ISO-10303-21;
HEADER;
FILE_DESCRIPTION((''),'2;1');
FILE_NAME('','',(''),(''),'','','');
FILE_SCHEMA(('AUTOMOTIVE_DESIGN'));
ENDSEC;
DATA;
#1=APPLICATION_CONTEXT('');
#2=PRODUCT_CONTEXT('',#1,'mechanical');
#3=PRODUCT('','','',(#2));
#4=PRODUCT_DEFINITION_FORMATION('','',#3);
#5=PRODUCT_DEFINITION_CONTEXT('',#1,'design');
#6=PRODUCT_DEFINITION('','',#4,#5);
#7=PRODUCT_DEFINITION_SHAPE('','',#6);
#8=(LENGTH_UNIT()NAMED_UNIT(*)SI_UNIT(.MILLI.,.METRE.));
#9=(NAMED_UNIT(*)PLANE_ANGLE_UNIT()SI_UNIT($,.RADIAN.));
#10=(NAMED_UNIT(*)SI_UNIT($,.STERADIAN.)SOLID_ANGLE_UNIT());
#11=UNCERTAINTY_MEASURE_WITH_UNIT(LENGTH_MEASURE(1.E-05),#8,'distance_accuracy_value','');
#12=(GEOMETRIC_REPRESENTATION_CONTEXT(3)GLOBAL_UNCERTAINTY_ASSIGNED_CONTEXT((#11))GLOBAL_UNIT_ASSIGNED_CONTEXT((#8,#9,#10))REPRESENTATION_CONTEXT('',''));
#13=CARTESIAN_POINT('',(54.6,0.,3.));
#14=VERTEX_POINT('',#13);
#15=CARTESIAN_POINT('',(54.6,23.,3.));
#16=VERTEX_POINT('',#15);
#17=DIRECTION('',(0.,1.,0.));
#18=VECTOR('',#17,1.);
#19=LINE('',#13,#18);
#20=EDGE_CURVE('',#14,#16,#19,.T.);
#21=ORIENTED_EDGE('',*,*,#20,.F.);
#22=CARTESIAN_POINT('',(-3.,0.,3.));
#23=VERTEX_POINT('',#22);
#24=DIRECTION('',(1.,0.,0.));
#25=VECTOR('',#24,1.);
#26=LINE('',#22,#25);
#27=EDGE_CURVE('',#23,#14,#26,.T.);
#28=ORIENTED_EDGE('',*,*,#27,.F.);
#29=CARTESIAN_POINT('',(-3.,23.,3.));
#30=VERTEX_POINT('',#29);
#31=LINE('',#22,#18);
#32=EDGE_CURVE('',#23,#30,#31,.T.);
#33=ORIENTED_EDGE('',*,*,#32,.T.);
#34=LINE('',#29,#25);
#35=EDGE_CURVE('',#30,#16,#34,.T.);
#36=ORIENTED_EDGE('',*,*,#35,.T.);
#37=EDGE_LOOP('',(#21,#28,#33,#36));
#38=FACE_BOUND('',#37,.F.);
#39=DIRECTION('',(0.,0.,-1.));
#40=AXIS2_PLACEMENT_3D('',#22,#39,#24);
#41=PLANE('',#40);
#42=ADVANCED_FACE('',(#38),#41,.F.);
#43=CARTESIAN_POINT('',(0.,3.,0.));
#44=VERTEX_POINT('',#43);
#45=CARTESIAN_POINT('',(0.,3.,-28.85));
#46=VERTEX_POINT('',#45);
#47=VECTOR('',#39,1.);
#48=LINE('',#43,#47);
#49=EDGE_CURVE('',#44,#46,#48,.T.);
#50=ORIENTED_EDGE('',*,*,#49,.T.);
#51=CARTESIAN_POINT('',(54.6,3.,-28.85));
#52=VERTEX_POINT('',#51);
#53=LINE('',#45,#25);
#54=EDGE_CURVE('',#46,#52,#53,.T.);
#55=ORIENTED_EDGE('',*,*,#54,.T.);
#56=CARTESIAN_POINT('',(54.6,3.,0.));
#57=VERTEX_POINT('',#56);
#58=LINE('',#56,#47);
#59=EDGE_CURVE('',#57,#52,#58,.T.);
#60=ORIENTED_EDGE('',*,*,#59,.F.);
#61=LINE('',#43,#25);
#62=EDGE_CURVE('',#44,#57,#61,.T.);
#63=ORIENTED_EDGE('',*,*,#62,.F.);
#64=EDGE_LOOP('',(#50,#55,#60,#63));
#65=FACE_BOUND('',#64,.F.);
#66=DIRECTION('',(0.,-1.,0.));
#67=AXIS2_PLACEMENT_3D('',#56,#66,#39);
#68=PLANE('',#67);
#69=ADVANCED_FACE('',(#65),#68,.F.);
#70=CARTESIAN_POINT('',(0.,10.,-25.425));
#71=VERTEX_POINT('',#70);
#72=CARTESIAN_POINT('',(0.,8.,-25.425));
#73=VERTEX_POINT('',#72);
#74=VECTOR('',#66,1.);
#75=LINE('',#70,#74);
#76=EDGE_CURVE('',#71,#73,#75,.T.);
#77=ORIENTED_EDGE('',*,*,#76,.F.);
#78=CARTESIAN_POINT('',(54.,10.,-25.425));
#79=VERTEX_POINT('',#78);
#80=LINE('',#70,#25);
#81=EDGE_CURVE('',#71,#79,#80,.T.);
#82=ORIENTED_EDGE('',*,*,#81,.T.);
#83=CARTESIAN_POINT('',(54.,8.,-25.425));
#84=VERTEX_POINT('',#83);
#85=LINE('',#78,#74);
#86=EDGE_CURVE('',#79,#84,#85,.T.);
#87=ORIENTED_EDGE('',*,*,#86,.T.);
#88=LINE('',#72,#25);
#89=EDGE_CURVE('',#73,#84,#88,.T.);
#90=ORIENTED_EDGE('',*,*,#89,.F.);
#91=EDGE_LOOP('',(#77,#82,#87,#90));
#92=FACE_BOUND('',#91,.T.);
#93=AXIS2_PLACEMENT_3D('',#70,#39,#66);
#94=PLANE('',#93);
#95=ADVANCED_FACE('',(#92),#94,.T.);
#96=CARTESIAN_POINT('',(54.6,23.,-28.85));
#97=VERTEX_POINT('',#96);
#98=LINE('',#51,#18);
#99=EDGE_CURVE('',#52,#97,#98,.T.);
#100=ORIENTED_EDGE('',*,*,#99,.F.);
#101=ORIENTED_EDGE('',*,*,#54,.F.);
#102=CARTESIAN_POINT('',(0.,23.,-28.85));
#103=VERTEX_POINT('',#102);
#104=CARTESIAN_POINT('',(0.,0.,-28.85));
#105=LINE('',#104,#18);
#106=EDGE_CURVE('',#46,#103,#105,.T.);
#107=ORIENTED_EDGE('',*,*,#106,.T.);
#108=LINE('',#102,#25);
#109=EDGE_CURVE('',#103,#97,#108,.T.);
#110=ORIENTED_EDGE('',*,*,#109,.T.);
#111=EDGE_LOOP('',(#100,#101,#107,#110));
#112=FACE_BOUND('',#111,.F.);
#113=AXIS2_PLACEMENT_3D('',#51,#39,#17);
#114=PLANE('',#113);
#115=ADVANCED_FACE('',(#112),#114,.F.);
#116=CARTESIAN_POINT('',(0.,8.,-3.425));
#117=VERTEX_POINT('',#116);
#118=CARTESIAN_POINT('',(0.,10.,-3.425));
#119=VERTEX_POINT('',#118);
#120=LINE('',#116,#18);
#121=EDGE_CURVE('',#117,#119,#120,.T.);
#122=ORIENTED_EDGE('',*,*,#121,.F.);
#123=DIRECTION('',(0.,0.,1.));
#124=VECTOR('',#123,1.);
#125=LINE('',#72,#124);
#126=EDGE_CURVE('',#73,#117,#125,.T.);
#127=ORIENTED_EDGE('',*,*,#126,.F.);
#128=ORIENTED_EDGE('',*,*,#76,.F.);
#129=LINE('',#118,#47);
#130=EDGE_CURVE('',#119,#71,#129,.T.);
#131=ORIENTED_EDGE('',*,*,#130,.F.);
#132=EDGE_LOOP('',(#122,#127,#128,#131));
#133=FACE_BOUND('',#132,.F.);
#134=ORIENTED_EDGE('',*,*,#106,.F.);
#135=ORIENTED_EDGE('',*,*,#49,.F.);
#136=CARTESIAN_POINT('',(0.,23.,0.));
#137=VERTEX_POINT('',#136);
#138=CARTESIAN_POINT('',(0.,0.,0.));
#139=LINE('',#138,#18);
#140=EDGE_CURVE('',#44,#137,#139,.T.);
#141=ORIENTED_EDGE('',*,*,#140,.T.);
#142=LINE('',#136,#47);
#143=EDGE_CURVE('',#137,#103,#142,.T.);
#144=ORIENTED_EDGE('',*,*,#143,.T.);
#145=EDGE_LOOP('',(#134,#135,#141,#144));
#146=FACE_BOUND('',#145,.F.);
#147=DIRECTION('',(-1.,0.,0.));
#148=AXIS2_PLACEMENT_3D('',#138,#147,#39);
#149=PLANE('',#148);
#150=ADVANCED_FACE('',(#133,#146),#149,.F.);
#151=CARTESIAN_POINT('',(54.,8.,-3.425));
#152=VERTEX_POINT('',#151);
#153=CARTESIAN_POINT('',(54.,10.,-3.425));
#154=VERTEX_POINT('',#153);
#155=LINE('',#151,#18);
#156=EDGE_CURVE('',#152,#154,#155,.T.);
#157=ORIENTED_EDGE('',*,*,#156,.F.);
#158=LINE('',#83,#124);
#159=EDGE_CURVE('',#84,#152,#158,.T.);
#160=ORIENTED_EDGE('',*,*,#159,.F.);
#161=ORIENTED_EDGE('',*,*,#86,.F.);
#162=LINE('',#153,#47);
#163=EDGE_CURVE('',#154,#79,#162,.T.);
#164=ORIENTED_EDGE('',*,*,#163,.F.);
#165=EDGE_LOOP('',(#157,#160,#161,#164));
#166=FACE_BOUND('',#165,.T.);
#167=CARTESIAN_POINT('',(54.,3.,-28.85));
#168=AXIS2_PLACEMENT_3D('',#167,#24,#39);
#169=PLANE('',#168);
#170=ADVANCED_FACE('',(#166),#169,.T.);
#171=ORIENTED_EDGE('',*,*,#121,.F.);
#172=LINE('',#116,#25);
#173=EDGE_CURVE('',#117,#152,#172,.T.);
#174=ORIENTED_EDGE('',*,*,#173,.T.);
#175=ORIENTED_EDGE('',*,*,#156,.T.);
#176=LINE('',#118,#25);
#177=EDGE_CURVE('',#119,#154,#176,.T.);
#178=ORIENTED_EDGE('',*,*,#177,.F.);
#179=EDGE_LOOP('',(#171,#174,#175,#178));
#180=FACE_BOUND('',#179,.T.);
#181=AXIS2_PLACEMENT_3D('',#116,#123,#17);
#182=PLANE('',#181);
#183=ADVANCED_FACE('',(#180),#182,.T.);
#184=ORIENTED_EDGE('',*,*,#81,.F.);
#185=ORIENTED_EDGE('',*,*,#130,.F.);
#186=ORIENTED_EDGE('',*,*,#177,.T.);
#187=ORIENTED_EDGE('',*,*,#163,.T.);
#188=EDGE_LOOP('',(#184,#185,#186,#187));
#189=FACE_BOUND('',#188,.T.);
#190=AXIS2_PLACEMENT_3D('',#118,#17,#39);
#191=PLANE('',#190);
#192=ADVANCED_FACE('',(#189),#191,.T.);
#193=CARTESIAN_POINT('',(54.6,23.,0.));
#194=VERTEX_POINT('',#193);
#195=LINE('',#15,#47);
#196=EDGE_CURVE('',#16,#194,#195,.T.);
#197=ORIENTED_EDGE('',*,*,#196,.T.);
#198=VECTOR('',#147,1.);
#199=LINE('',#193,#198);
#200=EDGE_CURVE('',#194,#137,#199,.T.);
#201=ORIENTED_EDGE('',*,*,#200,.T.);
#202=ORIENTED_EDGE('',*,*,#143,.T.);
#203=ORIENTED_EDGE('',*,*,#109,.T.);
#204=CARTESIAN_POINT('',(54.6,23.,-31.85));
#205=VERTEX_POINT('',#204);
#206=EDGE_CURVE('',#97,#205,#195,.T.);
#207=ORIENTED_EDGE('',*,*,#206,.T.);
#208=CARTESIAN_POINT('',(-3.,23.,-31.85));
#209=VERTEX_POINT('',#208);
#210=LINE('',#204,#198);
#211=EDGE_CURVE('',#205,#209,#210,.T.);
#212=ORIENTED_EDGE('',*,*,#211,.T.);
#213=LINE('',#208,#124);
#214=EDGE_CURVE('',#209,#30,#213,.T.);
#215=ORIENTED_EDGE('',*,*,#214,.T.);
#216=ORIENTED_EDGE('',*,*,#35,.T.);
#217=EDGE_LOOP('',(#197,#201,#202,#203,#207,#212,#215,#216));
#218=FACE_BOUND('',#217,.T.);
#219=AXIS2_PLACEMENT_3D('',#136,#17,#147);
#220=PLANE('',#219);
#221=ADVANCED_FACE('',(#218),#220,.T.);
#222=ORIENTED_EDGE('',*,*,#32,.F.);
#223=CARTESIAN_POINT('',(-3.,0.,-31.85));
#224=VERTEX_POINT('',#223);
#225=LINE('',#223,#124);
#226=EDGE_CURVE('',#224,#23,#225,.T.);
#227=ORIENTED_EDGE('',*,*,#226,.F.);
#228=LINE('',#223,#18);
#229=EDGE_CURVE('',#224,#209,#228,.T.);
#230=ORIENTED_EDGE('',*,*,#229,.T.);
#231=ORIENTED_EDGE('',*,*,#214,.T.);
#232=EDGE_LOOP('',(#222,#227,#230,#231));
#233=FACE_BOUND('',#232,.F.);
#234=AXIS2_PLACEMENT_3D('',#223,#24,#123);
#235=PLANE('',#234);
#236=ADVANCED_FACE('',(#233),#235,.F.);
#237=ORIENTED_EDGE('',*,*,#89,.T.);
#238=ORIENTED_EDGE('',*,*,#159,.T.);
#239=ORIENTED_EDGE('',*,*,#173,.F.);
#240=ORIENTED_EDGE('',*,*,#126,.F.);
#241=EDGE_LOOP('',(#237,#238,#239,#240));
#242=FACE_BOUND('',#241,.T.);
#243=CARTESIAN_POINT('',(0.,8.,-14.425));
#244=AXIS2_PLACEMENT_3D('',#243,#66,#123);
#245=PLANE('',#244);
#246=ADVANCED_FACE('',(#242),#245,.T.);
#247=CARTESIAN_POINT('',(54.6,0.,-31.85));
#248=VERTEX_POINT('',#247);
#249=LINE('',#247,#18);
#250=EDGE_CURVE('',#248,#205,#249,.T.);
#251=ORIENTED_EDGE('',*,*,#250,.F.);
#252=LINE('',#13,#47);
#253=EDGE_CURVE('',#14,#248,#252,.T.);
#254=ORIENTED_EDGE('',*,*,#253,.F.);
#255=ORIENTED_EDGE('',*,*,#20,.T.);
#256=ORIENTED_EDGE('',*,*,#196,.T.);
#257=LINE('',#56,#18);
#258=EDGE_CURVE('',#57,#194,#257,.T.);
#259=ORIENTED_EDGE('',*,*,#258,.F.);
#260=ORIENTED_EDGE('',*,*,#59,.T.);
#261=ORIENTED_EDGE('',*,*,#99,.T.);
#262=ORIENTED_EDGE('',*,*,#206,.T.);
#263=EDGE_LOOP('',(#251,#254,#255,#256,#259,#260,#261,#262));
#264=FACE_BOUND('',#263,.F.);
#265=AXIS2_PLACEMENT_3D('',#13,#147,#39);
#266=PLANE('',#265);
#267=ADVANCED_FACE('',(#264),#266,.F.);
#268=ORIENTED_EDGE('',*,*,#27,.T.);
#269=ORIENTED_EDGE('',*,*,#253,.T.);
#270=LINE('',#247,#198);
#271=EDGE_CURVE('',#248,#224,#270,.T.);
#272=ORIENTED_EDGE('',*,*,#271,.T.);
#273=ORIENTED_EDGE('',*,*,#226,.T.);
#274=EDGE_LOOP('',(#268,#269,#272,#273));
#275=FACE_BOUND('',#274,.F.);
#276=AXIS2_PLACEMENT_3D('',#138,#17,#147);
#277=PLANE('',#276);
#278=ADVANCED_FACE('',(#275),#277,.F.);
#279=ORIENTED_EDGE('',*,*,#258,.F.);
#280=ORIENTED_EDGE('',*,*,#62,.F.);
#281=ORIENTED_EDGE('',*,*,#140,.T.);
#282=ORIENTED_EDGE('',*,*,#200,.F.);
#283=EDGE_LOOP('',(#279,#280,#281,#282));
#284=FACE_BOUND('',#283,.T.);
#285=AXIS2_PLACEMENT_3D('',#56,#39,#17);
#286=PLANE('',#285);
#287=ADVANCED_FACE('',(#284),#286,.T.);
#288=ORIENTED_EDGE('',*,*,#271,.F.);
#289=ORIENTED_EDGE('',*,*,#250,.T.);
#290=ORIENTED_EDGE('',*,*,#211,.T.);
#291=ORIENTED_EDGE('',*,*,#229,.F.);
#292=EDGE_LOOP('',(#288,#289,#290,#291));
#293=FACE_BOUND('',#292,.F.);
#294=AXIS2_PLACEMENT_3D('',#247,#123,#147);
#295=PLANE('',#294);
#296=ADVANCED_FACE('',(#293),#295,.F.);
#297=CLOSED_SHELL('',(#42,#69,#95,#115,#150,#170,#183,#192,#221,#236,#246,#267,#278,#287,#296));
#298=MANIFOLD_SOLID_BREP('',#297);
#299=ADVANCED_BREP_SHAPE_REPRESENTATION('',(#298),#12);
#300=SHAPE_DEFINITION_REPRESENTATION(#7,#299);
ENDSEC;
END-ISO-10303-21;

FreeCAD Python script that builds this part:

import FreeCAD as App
import Part
import Sketcher


def add_polygon(sketch, points):
    """Adds a closed chain of lines whose ends are joined by coincident constraints."""
    first, n = sketch.GeometryCount, len(points)
    for a, b in zip(points, points[1:] + points[:1]):
        sketch.addGeometry(Part.LineSegment(App.Vector(*a, 0), App.Vector(*b, 0)), False)
    for i in range(n):
        sketch.addConstraint(Sketcher.Constraint("Coincident", first + i, 2, first + (i + 1) % n, 1))

doc = App.newDocument("Part")
body = doc.addObject("PartDesign::Body", "Body")

sketch1 = doc.addObject("Sketcher::SketchObject", "Sketch")
body.addObject(sketch1)
sketch1.AttachmentSupport = (doc.XZ_Plane, [""])
sketch1.MapMode = "FlatFace"
add_polygon(sketch1, [(0, -28.85), (0, 0), (51.6, 0), (51.6, -28.85)])
sketch1.addConstraint([
    Sketcher.Constraint("Vertical", 0),
    Sketcher.Constraint("Horizontal", 1),
    Sketcher.Constraint("Vertical", 2),
    Sketcher.Constraint("Horizontal", 3),
    Sketcher.Constraint("Coincident", 0, 2, -1, 1),
    Sketcher.Constraint("DistanceX", 1, 1, 1, 2, 51.6),
    Sketcher.Constraint("DistanceY", 0, 1, 0, 2, 28.85),
])
pad1 = doc.addObject("PartDesign::Pad", "Pad")
body.addObject(pad1)
pad1.Profile = sketch1
pad1.Length = 3
pad1.Reversed = True

sketch2 = doc.addObject("Sketcher::SketchObject", "Sketch001")
body.addObject(sketch2)
sketch2.AttachmentSupport = (doc.XZ_Plane, [""])
sketch2.MapMode = "FlatFace"
add_polygon(sketch2, [(54.6, 3), (54.6, -31.85), (-3, -31.85), (-3, 3)])
add_polygon(sketch2, [(51.6, 0), (0, 0), (0, -28.85), (51.6, -28.85)])
sketch2.addConstraint([
    Sketcher.Constraint("Vertical", 0),
    Sketcher.Constraint("Horizontal", 1),
    Sketcher.Constraint("Vertical", 2),
    Sketcher.Constraint("Horizontal", 3),
    Sketcher.Constraint("Horizontal", 4),
    Sketcher.Constraint("Vertical", 5),
    Sketcher.Constraint("Horizontal", 6),
    Sketcher.Constraint("Vertical", 7),
    Sketcher.Constraint("Coincident", 4, 2, -1, 1),
    Sketcher.Constraint("DistanceX", 4, 2, 4, 1, 51.6),
    Sketcher.Constraint("DistanceX", 1, 2, -1, 1, 3.0),
    Sketcher.Constraint("DistanceY", -1, 1, 2, 2, 3.0),
    Sketcher.Constraint("DistanceY", 1, 2, 5, 2, 3.0),
    Sketcher.Constraint("DistanceX", 6, 2, 0, 2, 3.0),
    Sketcher.Constraint("DistanceY", 5, 2, 5, 1, 28.85),
])
pad2 = doc.addObject("PartDesign::Pad", "Pad001")
body.addObject(pad2)
pad2.Profile = sketch2
pad2.Length = 23
pad2.Reversed = True

sketch3 = doc.addObject("Sketcher::SketchObject", "Sketch002")
body.addObject(sketch3)
sketch3.AttachmentSupport = (doc.YZ_Plane, [""])
sketch3.MapMode = "FlatFace"
sketch3.AttachmentOffset = App.Placement(App.Vector(0, 0, 54.6), App.Rotation())
add_polygon(sketch3, [(23, 0), (3, 0), (3, -28.85), (23, -28.85)])
sketch3.addConstraint([
    Sketcher.Constraint("Horizontal", 0),
    Sketcher.Constraint("Vertical", 1),
    Sketcher.Constraint("Horizontal", 2),
    Sketcher.Constraint("Vertical", 3),
    Sketcher.Constraint("PointOnObject", 0, 2, -1),
    Sketcher.Constraint("DistanceX", 0, 2, 0, 1, 20.0),
    Sketcher.Constraint("DistanceX", -1, 1, 0, 2, 3.0),
    Sketcher.Constraint("DistanceY", 1, 2, 1, 1, 28.85),
])
pocket1 = doc.addObject("PartDesign::Pocket", "Pocket")
body.addObject(pocket1)
pocket1.Profile = sketch3
pocket1.Length = 23

sketch4 = doc.addObject("Sketcher::SketchObject", "Sketch003")
body.addObject(sketch4)
sketch4.AttachmentSupport = (doc.YZ_Plane, [""])
sketch4.MapMode = "FlatFace"
add_polygon(sketch4, [(8, -3.425), (8, -25.425), (10, -25.425), (10, -3.425)])
sketch4.addConstraint([
    Sketcher.Constraint("Vertical", 0),
    Sketcher.Constraint("Horizontal", 1),
    Sketcher.Constraint("Vertical", 2),
    Sketcher.Constraint("Horizontal", 3),
    Sketcher.Constraint("DistanceX", 1, 1, 1, 2, 2.0),
    Sketcher.Constraint("DistanceY", 0, 2, 0, 1, 22.0),
    Sketcher.Constraint("DistanceX", -1, 1, 0, 2, 8.0),
    Sketcher.Constraint("DistanceY", 0, 2, -1, 1, 25.425),
])
pad3 = doc.addObject("PartDesign::Pad", "Pad002")
body.addObject(pad3)
pad3.Profile = sketch4
pad3.Length = 54

doc.recompute()
